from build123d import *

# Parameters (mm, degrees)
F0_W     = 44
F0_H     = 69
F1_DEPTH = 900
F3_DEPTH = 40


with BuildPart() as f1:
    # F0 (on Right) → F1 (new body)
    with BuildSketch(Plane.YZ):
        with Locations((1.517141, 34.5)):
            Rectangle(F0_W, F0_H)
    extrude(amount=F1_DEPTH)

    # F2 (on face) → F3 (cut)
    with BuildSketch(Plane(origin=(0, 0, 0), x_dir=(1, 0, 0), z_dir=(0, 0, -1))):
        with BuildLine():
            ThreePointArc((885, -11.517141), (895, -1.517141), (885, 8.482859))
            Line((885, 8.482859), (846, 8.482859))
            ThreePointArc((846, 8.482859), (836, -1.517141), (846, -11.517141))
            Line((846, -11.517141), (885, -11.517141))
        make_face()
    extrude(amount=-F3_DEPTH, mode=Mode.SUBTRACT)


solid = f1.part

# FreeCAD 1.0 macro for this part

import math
import FreeCAD as App
import Part
import Sketcher
from FreeCAD import Vector
Q = App.Units.Quantity

doc = App.newDocument("Part")
body = doc.addObject("PartDesign::Body", "Body")

# Sketch on YZ plane
sketch1 = body.newObject("Sketcher::SketchObject", "Sketch")
sketch1.AttachmentSupport = (doc.getObject("YZ_Plane"), [""])
sketch1.MapMode = "FlatFace"
sketch1.addGeometry(Part.LineSegment(Vector(-20, 69, 0), Vector(-20, 0, 0)), False)
sketch1.addGeometry(Part.LineSegment(Vector(-20, 0, 0), Vector(24, 0, 0)), False)
sketch1.addGeometry(Part.LineSegment(Vector(24, 0, 0), Vector(24, 69, 0)), False)
sketch1.addGeometry(Part.LineSegment(Vector(24, 69, 0), Vector(-20, 69, 0)), False)
sketch1.addConstraint(Sketcher.Constraint("Coincident", 0, 2, 1, 1))
sketch1.addConstraint(Sketcher.Constraint("Coincident", 1, 2, 2, 1))
sketch1.addConstraint(Sketcher.Constraint("Coincident", 2, 2, 3, 1))
sketch1.addConstraint(Sketcher.Constraint("Coincident", 3, 2, 0, 1))
sketch1.addConstraint(Sketcher.Constraint("Vertical", 0))
sketch1.addConstraint(Sketcher.Constraint("Horizontal", 1))
sketch1.addConstraint(Sketcher.Constraint("Vertical", 2))
sketch1.addConstraint(Sketcher.Constraint("Horizontal", 3))
sketch1.addConstraint(Sketcher.Constraint("PointOnObject", 0, 2, -1))
sketch1.addConstraint(Sketcher.Constraint("DistanceX", 1, 1, 1, 2, Q("44 mm")))
sketch1.addConstraint(Sketcher.Constraint("DistanceY", 0, 2, 0, 1, Q("69 mm")))
sketch1.addConstraint(Sketcher.Constraint("DistanceX", 0, 2, -1, 1, Q("20.482859 mm")))
pad1 = body.newObject("PartDesign::Pad", "Pad")
pad1.Profile = sketch1
pad1.Length = 900

# Sketch on XY plane
sketch2 = body.newObject("Sketcher::SketchObject", "Sketch001")
sketch2.AttachmentSupport = (doc.getObject("XY_Plane"), [""])
sketch2.MapMode = "FlatFace"
sketch2.addGeometry(Part.ArcOfCircle(Part.Circle(Vector(885, 2, 0), Vector(0, 0, 1), 10), math.radians(-90), math.radians(90)), False)
sketch2.addGeometry(Part.LineSegment(Vector(885, -8, 0), Vector(846, -8, 0)), False)
sketch2.addGeometry(Part.ArcOfCircle(Part.Circle(Vector(846, 2, 0), Vector(0, 0, 1), 10), math.radians(90), math.radians(270)), False)
sketch2.addGeometry(Part.LineSegment(Vector(846, 12, 0), Vector(885, 12, 0)), False)
sketch2.addConstraint(Sketcher.Constraint("Tangent", 0, 1, 1, 1))
sketch2.addConstraint(Sketcher.Constraint("Tangent", 1, 2, 2, 2))
sketch2.addConstraint(Sketcher.Constraint("Tangent", 2, 1, 3, 1))
sketch2.addConstraint(Sketcher.Constraint("Tangent", 3, 2, 0, 2))
sketch2.addConstraint(Sketcher.Constraint("Horizontal", 1))
sketch2.addConstraint(Sketcher.Constraint("Horizontal", 3))
sketch2.addConstraint(Sketcher.Constraint("Radius", 0, Q("10 mm")))
sketch2.addConstraint(Sketcher.Constraint("DistanceX", 1, 2, 1, 1, Q("39 mm")))
sketch2.addConstraint(Sketcher.Constraint("DistanceX", -1, 1, 0, 3, Q("885 mm")))
sketch2.addConstraint(Sketcher.Constraint("DistanceY", -1, 1, 0, 3, Q("1.517141 mm")))
pocket1 = body.newObject("PartDesign::Pocket", "Pocket")
pocket1.Profile = sketch2
pocket1.Length = 40
pocket1.Reversed = True

doc.recompute()
